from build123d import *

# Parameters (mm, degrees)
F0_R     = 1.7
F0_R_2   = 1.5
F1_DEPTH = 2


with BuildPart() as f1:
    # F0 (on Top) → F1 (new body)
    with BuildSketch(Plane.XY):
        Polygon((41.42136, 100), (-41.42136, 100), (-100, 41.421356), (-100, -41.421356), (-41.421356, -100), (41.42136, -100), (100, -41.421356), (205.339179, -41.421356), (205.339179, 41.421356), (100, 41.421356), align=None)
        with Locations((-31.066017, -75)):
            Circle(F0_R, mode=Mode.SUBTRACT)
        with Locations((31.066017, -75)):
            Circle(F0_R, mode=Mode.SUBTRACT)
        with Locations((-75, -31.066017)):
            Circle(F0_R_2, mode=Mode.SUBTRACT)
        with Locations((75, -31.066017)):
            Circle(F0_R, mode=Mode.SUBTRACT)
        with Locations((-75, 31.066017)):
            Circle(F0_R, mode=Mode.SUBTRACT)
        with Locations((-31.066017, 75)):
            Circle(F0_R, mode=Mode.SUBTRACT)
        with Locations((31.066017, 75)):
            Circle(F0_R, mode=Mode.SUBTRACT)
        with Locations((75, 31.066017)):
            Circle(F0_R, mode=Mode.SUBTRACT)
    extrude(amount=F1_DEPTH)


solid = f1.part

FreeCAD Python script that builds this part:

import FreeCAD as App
import Part
import Sketcher


def add_polygon(sketch, points):
    """Adds a closed chain of lines whose ends are joined by coincident constraints."""
    first, n = sketch.GeometryCount, len(points)
    for a, b in zip(points, points[1:] + points[:1]):
        sketch.addGeometry(Part.LineSegment(App.Vector(*a, 0), App.Vector(*b, 0)), False)
    for i in range(n):
        sketch.addConstraint(Sketcher.Constraint("Coincident", first + i, 2, first + (i + 1) % n, 1))

doc = App.newDocument("Part")
body = doc.addObject("PartDesign::Body", "Body")

sketch1 = body.newObject("Sketcher::SketchObject", "Sketch")
sketch1.AttachmentSupport = (doc.getObject("XY_Plane"), [""])
sketch1.MapMode = "FlatFace"
add_polygon(sketch1, [(41.42136, 100), (-41.42136, 100), (-100, 41.421356), (-100, -41.421356), (-41.421356, -100), (41.42136, -100), (100, -41.421356), (205.339179, -41.421356), (205.339179, 41.421356), (100, 41.421356)])
sketch1.addGeometry(Part.Circle(App.Vector(-31.066017, -75, 0), App.Vector(0, 0, 1), 1.7), False)
sketch1.addGeometry(Part.Circle(App.Vector(-75, -31.066017, 0), App.Vector(0, 0, 1), 1.5), False)
sketch1.addGeometry(Part.Circle(App.Vector(31.066017, -75, 0), App.Vector(0, 0, 1), 1.7), False)
sketch1.addGeometry(Part.Circle(App.Vector(75, -31.066017, 0), App.Vector(0, 0, 1), 1.7), False)
sketch1.addGeometry(Part.Circle(App.Vector(-75, 31.066017, 0), App.Vector(0, 0, 1), 1.7), False)
sketch1.addGeometry(Part.Circle(App.Vector(-31.066017, 75, 0), App.Vector(0, 0, 1), 1.7), False)
sketch1.addGeometry(Part.Circle(App.Vector(75, 31.066017, 0), App.Vector(0, 0, 1), 1.7), False)
sketch1.addGeometry(Part.Circle(App.Vector(31.066017, 75, 0), App.Vector(0, 0, 1), 1.7), False)
sketch1.addConstraint([
    Sketcher.Constraint("Horizontal", 0),
    Sketcher.Constraint("Vertical", 2),
    Sketcher.Constraint("Horizontal", 4),
    Sketcher.Constraint("Horizontal", 6),
    Sketcher.Constraint("Vertical", 7),
    Sketcher.Constraint("Horizontal", 8),
    Sketcher.Constraint("Equal", 10, 12),
    Sketcher.Constraint("Equal", 12, 13),
    Sketcher.Constraint("Equal", 13, 14),
    Sketcher.Constraint("Equal", 14, 15),
    Sketcher.Constraint("Equal", 15, 16),
    Sketcher.Constraint("Equal", 16, 17),
    Sketcher.Constraint("Symmetric", 13, 3, 14, 3, -1, 1),
    Sketcher.Constraint("Symmetric", 12, 3, 15, 3, -1, 1),
    Sketcher.Constraint("Symmetric", 11, 3, 16, 3, -1, 1),
    Sketcher.Constraint("Symmetric", 10, 3, 17, 3, -1, 1),
    Sketcher.Constraint("Symmetric", 0, 2, 4, 2, -1, 1),
    Sketcher.Constraint("Symmetric", 1, 2, 5, 2, -1, 1),
    Sketcher.Constraint("Symmetric", 2, 2, 8, 2, -1, 1),
    Sketcher.Constraint("Symmetric", 10, 3, 12, 3, -2),
    Sketcher.Constraint("Symmetric", 11, 3, 13, 3, -2),
    Sketcher.Constraint("Perpendicular", 1, 3),
    Sketcher.Constraint("Perpendicular", 5, 9),
    Sketcher.Constraint("Horizontal", 2, 2, 5, 2),
    Sketcher.Constraint("Vertical", 4, 2, 9, 2),
    Sketcher.Constraint("Diameter", 11, 3.0),
    Sketcher.Constraint("Diameter", 10, 3.4),
    Sketcher.Constraint("DistanceY", 10, 3, -1, 1, 75.0),
    Sketcher.Constraint("DistanceX", 11, 3, -1, 1, 75.0),
    Sketcher.Constraint("DistanceY", -1, 1, 0, 2, 100.0),
    Sketcher.Constraint("DistanceX", 1, 2, -1, 1, 100.0),
    Sketcher.Constraint("DistanceX", 0, 2, 0, 1, 82.84272),
    Sketcher.Constraint("DistanceX", 6, 1, 6, 2, 105.339179),
    Sketcher.Constraint("DistanceY", 14, 3, 1, 2, 10.355339),
    Sketcher.Constraint("DistanceX", 3, 2, 10, 3, 10.355339),
])
pad1 = body.newObject("PartDesign::Pad", "Pad")
pad1.Profile = sketch1
pad1.Length = 2

doc.recompute()
